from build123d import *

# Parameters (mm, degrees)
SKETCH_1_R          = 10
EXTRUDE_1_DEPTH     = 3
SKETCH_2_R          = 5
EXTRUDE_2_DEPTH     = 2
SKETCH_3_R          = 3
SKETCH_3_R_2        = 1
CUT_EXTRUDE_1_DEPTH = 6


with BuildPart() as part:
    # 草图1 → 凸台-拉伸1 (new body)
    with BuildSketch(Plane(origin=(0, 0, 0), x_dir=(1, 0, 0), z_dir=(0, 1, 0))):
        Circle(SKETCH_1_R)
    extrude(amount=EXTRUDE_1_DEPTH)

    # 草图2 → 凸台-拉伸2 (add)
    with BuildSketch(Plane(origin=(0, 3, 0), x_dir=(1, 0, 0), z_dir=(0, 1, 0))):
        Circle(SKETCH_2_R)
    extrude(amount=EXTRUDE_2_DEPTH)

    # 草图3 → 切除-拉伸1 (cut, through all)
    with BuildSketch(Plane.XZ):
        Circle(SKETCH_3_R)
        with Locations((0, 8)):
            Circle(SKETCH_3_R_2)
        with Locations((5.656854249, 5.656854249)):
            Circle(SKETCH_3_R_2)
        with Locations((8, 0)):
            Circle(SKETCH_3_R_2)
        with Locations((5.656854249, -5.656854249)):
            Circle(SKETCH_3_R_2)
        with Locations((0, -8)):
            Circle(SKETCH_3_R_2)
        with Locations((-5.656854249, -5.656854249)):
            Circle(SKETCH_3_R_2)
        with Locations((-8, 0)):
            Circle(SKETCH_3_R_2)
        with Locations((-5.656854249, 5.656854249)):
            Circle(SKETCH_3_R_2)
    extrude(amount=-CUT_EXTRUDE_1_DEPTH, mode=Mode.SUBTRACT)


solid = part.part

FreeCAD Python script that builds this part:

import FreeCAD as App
import Part
import Sketcher
from FreeCAD import Vector

doc = App.newDocument("Part")
body = doc.addObject("PartDesign::Body", "Body")

# Sketch on XZ plane
sketch1 = body.newObject("Sketcher::SketchObject", "Sketch")
sketch1.AttachmentSupport = (doc.getObject("XZ_Plane"), [""])
sketch1.MapMode = "FlatFace"
sketch1.addGeometry(Part.Circle(Vector(0, 0, 0), Vector(0, 0, 1), 10), False)
sketch1.addConstraint([
    Sketcher.Constraint("Coincident", 0, 3, -1, 1),
    Sketcher.Constraint("Diameter", 0, 20.0),
])
pad1 = body.newObject("PartDesign::Pad", "Pad")
pad1.Profile = sketch1
pad1.Length = 3
pad1.Reversed = True

# Sketch on XZ plane
sketch2 = body.newObject("Sketcher::SketchObject", "Sketch001")
sketch2.AttachmentSupport = (doc.getObject("XZ_Plane"), [""])
sketch2.MapMode = "FlatFace"
sketch2.AttachmentOffset = App.Placement(Vector(0, 0, -3), App.Rotation())
sketch2.addGeometry(Part.Circle(Vector(0, 0, 0), Vector(0, 0, 1), 5), False)
sketch2.addConstraint([
    Sketcher.Constraint("Coincident", 0, 3, -1, 1),
    Sketcher.Constraint("Diameter", 0, 10.0),
])
pad2 = body.newObject("PartDesign::Pad", "Pad001")
pad2.Profile = sketch2
pad2.Length = 2
pad2.Reversed = True

# Sketch on XZ plane
sketch3 = body.newObject("Sketcher::SketchObject", "Sketch002")
sketch3.AttachmentSupport = (doc.getObject("XZ_Plane"), [""])
sketch3.MapMode = "FlatFace"
sketch3.addGeometry([
    Part.Circle(Vector(0, 0, 0), Vector(0, 0, 1), 3),  # 0
    Part.Circle(Vector(0, 8, 0), Vector(0, 0, 1), 1),  # 1
    Part.Circle(Vector(5.656854, 5.656854, 0), Vector(0, 0, 1), 1),  # 2
    Part.Circle(Vector(8, 0, 0), Vector(0, 0, 1), 1),  # 3
    Part.Circle(Vector(5.656854, -5.656854, 0), Vector(0, 0, 1), 1),  # 4
    Part.Circle(Vector(0, -8, 0), Vector(0, 0, 1), 1),  # 5
    Part.Circle(Vector(-5.656854, -5.656854, 0), Vector(0, 0, 1), 1),  # 6
    Part.Circle(Vector(-8, 0, 0), Vector(0, 0, 1), 1),  # 7
    Part.Circle(Vector(-5.656854, 5.656854, 0), Vector(0, 0, 1), 1),  # 8
], False)
sketch3.addConstraint([
    Sketcher.Constraint("Coincident", 0, 3, -1, 1),
    Sketcher.Constraint("Equal", 1, 2),
    Sketcher.Constraint("Equal", 2, 3),
    Sketcher.Constraint("Equal", 3, 4),
    Sketcher.Constraint("Equal", 4, 5),
    Sketcher.Constraint("Equal", 5, 6),
    Sketcher.Constraint("Equal", 6, 7),
    Sketcher.Constraint("Equal", 7, 8),
    Sketcher.Constraint("Symmetric", 1, 3, 5, 3, -1, 1),
    Sketcher.Constraint("Symmetric", 2, 3, 6, 3, -1, 1),
    Sketcher.Constraint("Symmetric", 3, 3, 7, 3, -1, 1),
    Sketcher.Constraint("Symmetric", 4, 3, 8, 3, -1, 1),
    Sketcher.Constraint("Symmetric", 4, 3, 6, 3, -2),
    Sketcher.Constraint("PointOnObject", 1, 3, -2),
    Sketcher.Constraint("PointOnObject", 3, 3, -1),
    Sketcher.Constraint("Diameter", 0, 6.0),
    Sketcher.Constraint("Diameter", 1, 2.0),
    Sketcher.Constraint("DistanceY", -1, 1, 1, 3, 8.0),
    Sketcher.Constraint("DistanceX", -1, 1, 3, 3, 8.0),
    Sketcher.Constraint("DistanceY", 4, 3, 2, 3, 11.313708),
    Sketcher.Constraint("DistanceX", 6, 3, 4, 3, 11.313708),
])
pocket1 = body.newObject("PartDesign::Pocket", "Pocket")
pocket1.Profile = sketch3
pocket1.Type = "ThroughAll"

doc.recompute()
